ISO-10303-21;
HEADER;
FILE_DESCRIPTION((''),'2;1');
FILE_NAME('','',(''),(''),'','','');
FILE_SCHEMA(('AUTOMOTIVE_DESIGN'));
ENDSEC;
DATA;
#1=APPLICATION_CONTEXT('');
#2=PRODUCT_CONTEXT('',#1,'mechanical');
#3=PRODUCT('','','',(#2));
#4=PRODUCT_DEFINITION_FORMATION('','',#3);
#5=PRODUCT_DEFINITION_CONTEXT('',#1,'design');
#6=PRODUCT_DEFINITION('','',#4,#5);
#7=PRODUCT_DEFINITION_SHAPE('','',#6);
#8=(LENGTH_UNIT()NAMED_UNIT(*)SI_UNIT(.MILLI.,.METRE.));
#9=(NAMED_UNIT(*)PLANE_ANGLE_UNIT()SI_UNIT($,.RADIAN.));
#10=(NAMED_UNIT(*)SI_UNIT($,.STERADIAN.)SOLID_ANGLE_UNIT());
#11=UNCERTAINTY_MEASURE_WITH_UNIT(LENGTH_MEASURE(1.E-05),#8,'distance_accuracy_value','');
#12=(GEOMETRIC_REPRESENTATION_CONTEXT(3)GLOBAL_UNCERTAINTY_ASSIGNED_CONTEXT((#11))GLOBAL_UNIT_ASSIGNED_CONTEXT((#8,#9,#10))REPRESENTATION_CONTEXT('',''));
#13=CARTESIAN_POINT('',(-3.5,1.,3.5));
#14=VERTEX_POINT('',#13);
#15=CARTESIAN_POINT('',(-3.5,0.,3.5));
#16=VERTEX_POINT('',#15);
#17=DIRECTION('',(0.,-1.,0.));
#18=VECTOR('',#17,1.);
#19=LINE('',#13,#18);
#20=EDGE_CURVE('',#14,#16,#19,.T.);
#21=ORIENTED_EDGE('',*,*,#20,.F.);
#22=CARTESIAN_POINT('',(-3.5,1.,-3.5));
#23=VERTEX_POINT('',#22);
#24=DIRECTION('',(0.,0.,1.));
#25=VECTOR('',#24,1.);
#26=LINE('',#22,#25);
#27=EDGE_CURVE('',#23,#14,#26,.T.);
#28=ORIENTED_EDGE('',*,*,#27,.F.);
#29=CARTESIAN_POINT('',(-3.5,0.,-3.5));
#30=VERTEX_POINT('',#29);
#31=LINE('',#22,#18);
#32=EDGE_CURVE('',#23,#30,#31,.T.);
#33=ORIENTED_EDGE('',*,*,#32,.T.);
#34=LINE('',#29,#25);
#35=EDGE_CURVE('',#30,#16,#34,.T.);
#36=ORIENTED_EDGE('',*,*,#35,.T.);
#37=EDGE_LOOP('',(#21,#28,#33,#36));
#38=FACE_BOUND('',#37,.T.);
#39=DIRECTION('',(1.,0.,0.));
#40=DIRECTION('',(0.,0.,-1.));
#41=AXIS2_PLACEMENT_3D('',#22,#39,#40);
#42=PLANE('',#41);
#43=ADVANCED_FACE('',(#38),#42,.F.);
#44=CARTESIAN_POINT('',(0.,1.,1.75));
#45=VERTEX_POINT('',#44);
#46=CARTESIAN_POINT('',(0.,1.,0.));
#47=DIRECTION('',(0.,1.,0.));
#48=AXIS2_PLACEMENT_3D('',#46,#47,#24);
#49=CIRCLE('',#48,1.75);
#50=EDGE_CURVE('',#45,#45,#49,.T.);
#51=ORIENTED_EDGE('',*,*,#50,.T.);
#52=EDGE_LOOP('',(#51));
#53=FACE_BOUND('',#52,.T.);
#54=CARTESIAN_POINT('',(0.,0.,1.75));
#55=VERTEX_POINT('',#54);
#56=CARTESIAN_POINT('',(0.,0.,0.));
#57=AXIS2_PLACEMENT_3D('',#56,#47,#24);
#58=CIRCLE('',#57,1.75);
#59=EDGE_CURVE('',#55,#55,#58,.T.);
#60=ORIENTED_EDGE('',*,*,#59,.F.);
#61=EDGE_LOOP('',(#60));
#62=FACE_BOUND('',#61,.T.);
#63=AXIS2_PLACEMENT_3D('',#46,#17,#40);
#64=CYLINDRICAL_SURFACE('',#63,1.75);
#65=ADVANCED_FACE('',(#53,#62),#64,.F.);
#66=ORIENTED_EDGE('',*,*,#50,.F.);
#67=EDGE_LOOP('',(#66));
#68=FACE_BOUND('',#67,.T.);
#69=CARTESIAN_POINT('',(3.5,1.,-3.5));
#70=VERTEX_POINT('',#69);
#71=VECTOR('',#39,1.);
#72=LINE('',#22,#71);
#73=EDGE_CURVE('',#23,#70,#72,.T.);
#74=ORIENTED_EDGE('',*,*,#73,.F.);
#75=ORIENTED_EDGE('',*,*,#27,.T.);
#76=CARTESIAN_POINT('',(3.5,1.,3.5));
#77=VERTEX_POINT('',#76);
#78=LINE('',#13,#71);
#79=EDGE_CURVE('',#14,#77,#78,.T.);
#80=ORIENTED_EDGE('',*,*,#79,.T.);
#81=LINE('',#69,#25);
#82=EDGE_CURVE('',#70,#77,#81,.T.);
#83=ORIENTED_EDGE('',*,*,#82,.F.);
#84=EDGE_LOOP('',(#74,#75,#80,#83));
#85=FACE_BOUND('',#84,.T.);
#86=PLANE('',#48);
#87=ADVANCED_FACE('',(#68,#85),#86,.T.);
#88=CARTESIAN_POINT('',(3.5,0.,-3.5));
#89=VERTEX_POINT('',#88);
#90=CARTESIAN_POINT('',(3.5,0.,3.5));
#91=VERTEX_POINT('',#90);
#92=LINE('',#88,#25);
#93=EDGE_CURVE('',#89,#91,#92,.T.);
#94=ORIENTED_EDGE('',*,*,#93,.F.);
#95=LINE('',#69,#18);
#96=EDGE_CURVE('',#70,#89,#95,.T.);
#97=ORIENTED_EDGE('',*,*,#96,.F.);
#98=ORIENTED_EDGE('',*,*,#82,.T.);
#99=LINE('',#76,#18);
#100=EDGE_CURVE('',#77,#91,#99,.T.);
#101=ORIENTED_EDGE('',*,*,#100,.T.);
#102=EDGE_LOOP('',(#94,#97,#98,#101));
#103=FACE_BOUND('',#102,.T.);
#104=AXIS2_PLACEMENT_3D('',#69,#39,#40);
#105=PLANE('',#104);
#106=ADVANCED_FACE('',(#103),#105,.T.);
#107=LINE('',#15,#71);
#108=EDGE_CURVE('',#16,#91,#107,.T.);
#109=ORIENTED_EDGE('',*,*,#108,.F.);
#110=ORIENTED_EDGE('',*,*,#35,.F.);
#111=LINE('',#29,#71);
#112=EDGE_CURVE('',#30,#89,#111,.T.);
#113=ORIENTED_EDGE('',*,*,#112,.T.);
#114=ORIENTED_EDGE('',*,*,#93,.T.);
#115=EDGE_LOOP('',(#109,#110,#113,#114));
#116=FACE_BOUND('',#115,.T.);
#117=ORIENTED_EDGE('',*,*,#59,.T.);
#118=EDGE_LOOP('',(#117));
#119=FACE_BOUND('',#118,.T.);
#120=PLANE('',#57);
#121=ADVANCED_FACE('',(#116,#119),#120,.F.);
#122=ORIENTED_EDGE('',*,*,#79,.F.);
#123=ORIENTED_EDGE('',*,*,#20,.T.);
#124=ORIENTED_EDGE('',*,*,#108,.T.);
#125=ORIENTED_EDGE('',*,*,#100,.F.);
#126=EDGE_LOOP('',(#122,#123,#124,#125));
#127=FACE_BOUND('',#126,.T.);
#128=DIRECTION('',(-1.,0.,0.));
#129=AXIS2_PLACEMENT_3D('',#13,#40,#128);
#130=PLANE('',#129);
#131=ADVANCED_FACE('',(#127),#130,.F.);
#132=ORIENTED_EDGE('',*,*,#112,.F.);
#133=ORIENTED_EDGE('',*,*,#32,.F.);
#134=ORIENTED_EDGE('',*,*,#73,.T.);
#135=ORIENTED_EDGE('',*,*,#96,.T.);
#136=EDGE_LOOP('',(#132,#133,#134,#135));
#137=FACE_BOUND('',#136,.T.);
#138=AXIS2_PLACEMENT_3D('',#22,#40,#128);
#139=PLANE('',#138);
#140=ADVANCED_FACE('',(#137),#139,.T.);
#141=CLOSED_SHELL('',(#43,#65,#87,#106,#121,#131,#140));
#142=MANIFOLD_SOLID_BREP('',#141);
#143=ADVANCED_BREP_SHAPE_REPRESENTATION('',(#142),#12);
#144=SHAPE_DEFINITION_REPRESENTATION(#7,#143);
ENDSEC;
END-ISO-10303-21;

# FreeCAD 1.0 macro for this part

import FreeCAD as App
import Part
import Sketcher
from FreeCAD import Vector

doc = App.newDocument("Part")
params = doc.addObject("Spreadsheet::Sheet", "Params")
for row, (alias, value) in enumerate([
    ("sketch1_diameter", "3.5 mm"),
    ("sketch1_width", "7 mm"),
    ("pad1_length", "1 mm"),
], start=1):
    params.set(f"A{row}", alias)
    params.set(f"B{row}", "=" + value)
    params.setAlias(f"B{row}", alias)

body = doc.addObject("PartDesign::Body", "Body")

# Sketch on XZ plane
sketch1 = doc.addObject("Sketcher::SketchObject", "Sketch")
body.addObject(sketch1)
sketch1.AttachmentSupport = (doc.XZ_Plane, [""])
sketch1.MapMode = "FlatFace"
sketch1.addGeometry([
    Part.LineSegment(Vector(-3.5, -3.5, 0), Vector(-3.5, 3.5, 0)),  # 0
    Part.LineSegment(Vector(-3.5, 3.5, 0), Vector(3.5, 3.5, 0)),  # 1
    Part.LineSegment(Vector(3.5, 3.5, 0), Vector(3.5, -3.5, 0)),  # 2
    Part.LineSegment(Vector(3.5, -3.5, 0), Vector(-3.5, -3.5, 0)),  # 3
    Part.Circle(Vector(0, 0, 0), Vector(0, 0, 1), 1.8),  # 4
], False)
sketch1.addConstraint([
    Sketcher.Constraint("Coincident", 0, 2, 1, 1),
    Sketcher.Constraint("Coincident", 1, 2, 2, 1),
    Sketcher.Constraint("Coincident", 2, 2, 3, 1),
    Sketcher.Constraint("Coincident", 3, 2, 0, 1),
    Sketcher.Constraint("Vertical", 0),
    Sketcher.Constraint("Horizontal", 1),
    Sketcher.Constraint("Vertical", 2),
    Sketcher.Constraint("Horizontal", 3),
    Sketcher.Constraint("Coincident", 4, 3, -1, 1),
    Sketcher.Constraint("Symmetric", 0, 2, 2, 2, -1, 1),
    Sketcher.Constraint("Equal", 3, 0),
    Sketcher.Constraint("Diameter", 4, 3.5),
    Sketcher.Constraint("DistanceX", 1, 1, 1, 2, 7.0),
])
sketch1.setExpression("Constraints[11]", "Params.sketch1_diameter")
sketch1.setExpression("Constraints[12]", "Params.sketch1_width")
pad1 = doc.addObject("PartDesign::Pad", "Pad")
body.addObject(pad1)
pad1.Profile = sketch1
pad1.setExpression("Length", "Params.pad1_length")
pad1.Reversed = True

doc.recompute()
